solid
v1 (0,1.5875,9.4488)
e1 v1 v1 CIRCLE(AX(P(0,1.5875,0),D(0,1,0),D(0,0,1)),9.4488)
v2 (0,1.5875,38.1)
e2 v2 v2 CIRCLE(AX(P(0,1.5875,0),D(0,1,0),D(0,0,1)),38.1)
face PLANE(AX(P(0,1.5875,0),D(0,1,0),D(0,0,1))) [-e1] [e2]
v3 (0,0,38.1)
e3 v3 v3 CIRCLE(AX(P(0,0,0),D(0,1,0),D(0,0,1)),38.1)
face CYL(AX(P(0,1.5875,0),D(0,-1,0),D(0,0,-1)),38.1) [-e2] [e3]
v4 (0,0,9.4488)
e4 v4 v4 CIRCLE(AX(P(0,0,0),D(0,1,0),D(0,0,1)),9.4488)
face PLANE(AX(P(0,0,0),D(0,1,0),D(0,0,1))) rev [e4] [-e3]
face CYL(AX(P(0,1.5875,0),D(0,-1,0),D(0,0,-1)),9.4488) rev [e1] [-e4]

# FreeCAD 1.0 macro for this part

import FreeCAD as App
import Part
import Sketcher
Q = App.Units.Quantity

doc = App.newDocument("Part")
body = doc.addObject("PartDesign::Body", "Body")

sketch1 = body.newObject("Sketcher::SketchObject", "Sketch")
sketch1.AttachmentSupport = (doc.getObject("XZ_Plane"), [""])
sketch1.MapMode = "FlatFace"
sketch1.addGeometry([
    Part.Circle(App.Vector(0, 0, 0), App.Vector(0, 0, 1), 38),
    Part.Circle(App.Vector(0, 0, 0), App.Vector(0, 0, 1), 9),
], False)
sketch1.addConstraint([
    Sketcher.Constraint("Coincident", 0, 3, -1, 1),
    Sketcher.Constraint("Coincident", 1, 3, -1, 1),
    Sketcher.Constraint("Diameter", 0, Q("3 in")),
    Sketcher.Constraint("Diameter", 1, Q("0.744 in")),
])
pad1 = body.newObject("PartDesign::Pad", "Pad")
pad1.Profile = sketch1
pad1.Length = Q("0.0625 in")
pad1.Reversed = True

doc.recompute()
